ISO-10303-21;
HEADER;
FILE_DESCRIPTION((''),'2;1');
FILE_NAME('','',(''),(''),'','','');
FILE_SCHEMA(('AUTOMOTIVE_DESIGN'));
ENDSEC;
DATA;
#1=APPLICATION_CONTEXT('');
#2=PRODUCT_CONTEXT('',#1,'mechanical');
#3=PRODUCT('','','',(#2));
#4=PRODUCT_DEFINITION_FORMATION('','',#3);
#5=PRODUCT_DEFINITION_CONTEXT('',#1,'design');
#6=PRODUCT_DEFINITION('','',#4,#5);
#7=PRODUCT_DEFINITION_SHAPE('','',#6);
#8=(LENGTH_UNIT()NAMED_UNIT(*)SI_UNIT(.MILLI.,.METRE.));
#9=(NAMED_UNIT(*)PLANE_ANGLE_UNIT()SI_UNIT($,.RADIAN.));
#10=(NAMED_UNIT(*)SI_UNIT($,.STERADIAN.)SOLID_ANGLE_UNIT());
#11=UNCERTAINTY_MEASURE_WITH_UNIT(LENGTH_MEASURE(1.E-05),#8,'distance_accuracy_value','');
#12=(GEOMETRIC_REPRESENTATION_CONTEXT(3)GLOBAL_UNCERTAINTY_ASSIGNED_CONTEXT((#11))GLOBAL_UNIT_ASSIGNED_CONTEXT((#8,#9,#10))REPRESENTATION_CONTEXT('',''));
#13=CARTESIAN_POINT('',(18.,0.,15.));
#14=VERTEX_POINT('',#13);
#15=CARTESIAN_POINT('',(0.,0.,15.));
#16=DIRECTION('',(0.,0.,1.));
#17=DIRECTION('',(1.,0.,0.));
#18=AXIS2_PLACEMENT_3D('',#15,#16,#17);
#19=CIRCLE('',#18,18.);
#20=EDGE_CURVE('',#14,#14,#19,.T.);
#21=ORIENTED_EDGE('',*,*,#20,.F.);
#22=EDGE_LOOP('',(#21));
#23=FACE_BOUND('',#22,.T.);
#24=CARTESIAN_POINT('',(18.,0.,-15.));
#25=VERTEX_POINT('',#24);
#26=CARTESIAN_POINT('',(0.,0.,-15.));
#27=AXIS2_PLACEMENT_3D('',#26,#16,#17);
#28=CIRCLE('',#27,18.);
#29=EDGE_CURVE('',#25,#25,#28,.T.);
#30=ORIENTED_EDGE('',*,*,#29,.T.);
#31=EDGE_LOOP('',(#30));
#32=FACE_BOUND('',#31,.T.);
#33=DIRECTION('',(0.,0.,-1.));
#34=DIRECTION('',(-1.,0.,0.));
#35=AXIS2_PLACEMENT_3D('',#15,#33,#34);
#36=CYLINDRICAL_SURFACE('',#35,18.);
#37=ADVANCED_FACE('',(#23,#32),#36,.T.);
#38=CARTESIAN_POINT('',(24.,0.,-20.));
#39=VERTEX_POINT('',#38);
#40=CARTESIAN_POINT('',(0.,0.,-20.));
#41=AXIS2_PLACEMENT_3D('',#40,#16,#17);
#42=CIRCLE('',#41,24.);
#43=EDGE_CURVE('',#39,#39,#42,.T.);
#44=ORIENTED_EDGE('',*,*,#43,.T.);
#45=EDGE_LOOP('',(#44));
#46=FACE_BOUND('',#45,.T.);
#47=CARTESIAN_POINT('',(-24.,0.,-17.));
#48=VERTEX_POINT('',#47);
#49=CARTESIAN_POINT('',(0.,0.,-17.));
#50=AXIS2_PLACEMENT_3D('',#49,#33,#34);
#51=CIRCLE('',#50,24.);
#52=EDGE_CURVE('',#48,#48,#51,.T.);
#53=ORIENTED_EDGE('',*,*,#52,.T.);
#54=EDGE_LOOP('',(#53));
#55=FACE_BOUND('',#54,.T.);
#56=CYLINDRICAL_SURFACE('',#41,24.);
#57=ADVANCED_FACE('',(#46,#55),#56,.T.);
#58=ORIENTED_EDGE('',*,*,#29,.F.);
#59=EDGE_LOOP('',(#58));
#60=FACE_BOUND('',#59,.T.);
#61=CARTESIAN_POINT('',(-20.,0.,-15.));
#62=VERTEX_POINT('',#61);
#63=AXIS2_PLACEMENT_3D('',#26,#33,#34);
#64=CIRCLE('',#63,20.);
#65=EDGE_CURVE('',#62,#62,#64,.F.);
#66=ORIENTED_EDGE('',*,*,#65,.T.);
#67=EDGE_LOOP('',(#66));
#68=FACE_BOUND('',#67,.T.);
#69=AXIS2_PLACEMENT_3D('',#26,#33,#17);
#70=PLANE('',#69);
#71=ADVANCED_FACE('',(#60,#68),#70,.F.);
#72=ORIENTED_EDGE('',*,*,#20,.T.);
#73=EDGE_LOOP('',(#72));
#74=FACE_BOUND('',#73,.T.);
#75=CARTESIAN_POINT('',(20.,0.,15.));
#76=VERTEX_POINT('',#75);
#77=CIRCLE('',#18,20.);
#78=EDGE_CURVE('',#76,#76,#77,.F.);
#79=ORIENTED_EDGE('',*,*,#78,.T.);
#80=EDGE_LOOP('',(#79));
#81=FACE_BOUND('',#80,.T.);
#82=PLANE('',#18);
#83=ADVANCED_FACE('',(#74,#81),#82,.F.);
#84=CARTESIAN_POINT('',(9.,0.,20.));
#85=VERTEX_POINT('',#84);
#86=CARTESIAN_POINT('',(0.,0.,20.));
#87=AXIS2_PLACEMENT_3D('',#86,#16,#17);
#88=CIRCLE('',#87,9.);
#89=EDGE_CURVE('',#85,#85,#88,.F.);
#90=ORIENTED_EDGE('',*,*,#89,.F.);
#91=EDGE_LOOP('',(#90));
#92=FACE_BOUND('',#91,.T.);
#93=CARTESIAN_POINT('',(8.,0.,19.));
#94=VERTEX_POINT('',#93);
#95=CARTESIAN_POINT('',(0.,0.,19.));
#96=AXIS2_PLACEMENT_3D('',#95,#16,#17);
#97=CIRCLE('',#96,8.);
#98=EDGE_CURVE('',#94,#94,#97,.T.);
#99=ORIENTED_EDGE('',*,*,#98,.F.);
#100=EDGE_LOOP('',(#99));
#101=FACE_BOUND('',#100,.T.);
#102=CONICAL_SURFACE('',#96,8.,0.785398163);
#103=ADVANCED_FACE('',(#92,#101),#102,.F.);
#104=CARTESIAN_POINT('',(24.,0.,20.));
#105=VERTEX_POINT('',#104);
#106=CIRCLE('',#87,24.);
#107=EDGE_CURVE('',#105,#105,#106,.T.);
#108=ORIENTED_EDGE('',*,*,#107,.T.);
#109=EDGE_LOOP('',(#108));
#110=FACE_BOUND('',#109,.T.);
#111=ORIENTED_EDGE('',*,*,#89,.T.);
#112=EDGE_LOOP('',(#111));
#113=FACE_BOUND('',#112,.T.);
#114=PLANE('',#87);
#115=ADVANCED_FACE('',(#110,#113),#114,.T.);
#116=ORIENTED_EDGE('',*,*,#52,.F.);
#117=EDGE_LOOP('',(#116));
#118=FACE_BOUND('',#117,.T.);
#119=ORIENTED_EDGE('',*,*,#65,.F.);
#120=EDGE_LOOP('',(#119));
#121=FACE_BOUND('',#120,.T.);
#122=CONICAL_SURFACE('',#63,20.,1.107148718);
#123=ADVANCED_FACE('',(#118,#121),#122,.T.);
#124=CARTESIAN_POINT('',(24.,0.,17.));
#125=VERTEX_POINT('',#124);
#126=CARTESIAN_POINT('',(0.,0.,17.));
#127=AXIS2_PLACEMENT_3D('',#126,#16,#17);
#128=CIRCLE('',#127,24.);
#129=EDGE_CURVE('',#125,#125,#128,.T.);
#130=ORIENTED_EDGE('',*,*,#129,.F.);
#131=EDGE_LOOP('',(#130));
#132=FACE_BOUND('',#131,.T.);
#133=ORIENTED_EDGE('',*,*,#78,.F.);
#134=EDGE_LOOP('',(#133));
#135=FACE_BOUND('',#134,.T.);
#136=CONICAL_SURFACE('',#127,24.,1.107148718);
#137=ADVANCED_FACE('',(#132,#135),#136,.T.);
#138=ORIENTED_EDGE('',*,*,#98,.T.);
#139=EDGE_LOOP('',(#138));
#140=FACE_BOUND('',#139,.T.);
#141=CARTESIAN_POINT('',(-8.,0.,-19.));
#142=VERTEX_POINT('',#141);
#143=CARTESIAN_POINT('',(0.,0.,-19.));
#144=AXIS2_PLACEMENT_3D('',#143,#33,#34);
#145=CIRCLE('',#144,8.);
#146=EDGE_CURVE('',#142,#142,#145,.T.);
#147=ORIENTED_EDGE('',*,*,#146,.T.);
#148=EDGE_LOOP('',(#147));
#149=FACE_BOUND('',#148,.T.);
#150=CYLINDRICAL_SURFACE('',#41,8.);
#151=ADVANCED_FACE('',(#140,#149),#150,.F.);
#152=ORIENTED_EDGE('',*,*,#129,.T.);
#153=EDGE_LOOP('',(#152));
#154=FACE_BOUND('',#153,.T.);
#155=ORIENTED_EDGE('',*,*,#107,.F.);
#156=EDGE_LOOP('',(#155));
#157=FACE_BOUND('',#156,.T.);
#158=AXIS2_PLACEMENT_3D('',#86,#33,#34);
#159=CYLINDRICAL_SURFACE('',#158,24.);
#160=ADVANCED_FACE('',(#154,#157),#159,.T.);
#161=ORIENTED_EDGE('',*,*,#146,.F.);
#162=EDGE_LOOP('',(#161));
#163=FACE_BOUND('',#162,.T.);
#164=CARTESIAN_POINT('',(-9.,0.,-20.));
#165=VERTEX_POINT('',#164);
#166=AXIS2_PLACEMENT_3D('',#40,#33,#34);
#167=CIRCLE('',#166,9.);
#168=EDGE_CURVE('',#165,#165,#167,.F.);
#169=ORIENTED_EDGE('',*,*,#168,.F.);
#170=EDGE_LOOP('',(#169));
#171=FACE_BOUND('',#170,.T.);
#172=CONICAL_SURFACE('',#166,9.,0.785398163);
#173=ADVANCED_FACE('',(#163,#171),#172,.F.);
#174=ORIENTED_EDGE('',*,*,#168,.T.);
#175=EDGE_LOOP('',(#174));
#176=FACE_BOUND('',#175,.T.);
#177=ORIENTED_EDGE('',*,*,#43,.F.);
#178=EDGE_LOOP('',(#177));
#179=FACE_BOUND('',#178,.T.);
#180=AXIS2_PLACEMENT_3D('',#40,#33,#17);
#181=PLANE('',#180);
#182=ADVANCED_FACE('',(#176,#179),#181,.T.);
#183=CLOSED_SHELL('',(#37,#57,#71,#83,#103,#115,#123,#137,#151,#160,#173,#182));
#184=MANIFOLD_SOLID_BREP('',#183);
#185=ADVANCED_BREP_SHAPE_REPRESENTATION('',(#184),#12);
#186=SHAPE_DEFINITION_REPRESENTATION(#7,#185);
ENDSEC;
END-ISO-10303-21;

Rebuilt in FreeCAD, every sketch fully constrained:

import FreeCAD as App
import Part
import Sketcher

V = App.Vector
Q = App.Units.Quantity


def edges_at(feature, points):
    """Names of the edges that pass closest to the given points."""
    edges = feature.Shape.Edges
    near = lambda p: min(range(len(edges)), key=lambda i: edges[i].distToShape(Part.Vertex(*p))[0])
    return sorted({f"Edge{near(p) + 1}" for p in points})

doc = App.newDocument("Part")
body = doc.addObject("PartDesign::Body", "Body")

# Sketch on XY plane
sketch1 = doc.addObject("Sketcher::SketchObject", "Sketch")
body.addObject(sketch1)
sketch1.AttachmentSupport = (doc.XY_Plane, [""])
sketch1.MapMode = "FlatFace"
sketch1.addGeometry(Part.Circle(V(0, 0, 0), V(0, 0, 1), 18), False)
sketch1.addConstraint([
    Sketcher.Constraint("Coincident", 0, 3, -1, 1),
    Sketcher.Constraint("Diameter", 0, Q("36 mm")),
])
pad1 = doc.addObject("PartDesign::Pad", "Pad")
body.addObject(pad1)
pad1.Profile = sketch1
pad1.Length = 30
pad1.Midplane = True

# Sketch on XY plane
sketch2 = doc.addObject("Sketcher::SketchObject", "Sketch001")
body.addObject(sketch2)
sketch2.AttachmentSupport = (doc.XY_Plane, [""])
sketch2.MapMode = "FlatFace"
sketch2.AttachmentOffset = App.Placement(V(0, 0, 15), App.Rotation())
sketch2.addGeometry(Part.Circle(V(0, 0, 0), V(0, 0, 1), 24), False)
sketch2.addConstraint([
    Sketcher.Constraint("Coincident", 0, 3, -1, 1),
    Sketcher.Constraint("Diameter", 0, Q("48 mm")),
])
pad2 = doc.addObject("PartDesign::Pad", "Pad001")
body.addObject(pad2)
pad2.Profile = sketch2
pad2.Length = 5
doc.recompute()

chamfer = doc.addObject("PartDesign::Chamfer", "Chamfer")
body.addObject(chamfer)
chamfer.Base = (pad2, edges_at(pad2, [(-24, 0, 15)]))
chamfer.ChamferType = "Two distances"
chamfer.Size = 4
chamfer.Size2 = 2
doc.recompute()

mirrored = doc.addObject("PartDesign::Mirrored", "Mirrored")
body.addObject(mirrored)
mirrored.Originals = [pad2]
mirrored.MirrorPlane = (doc.XY_Plane, [""])
body.Tip = mirrored
doc.recompute()

chamfer2 = doc.addObject("PartDesign::Chamfer", "Chamfer001")
body.addObject(chamfer2)
chamfer2.Base = (mirrored, edges_at(mirrored, [(-24, 0, -15)]))
chamfer2.ChamferType = "Two distances"
chamfer2.Size = 2
chamfer2.Size2 = 4
chamfer2.FlipDirection = True

# Sketch on XY plane
sketch3 = doc.addObject("Sketcher::SketchObject", "Sketch002")
body.addObject(sketch3)
sketch3.AttachmentSupport = (doc.XY_Plane, [""])
sketch3.MapMode = "FlatFace"
sketch3.addGeometry(Part.Circle(V(0, 0, 0), V(0, 0, 1), 8), False)
sketch3.addConstraint([
    Sketcher.Constraint("Coincident", 0, 3, -1, 1),
    Sketcher.Constraint("Diameter", 0, Q("16 mm")),
])
pocket1 = doc.addObject("PartDesign::Pocket", "Pocket")
body.addObject(pocket1)
pocket1.Profile = sketch3
pocket1.Type = "ThroughAll"
pocket1.Midplane = True
doc.recompute()

chamfer3 = doc.addObject("PartDesign::Chamfer", "Chamfer002")
body.addObject(chamfer3)
chamfer3.Base = (pocket1, edges_at(pocket1, [(-8, 0, -20), (-8, 0, 20)]))
chamfer3.Size = 1

doc.recompute()
